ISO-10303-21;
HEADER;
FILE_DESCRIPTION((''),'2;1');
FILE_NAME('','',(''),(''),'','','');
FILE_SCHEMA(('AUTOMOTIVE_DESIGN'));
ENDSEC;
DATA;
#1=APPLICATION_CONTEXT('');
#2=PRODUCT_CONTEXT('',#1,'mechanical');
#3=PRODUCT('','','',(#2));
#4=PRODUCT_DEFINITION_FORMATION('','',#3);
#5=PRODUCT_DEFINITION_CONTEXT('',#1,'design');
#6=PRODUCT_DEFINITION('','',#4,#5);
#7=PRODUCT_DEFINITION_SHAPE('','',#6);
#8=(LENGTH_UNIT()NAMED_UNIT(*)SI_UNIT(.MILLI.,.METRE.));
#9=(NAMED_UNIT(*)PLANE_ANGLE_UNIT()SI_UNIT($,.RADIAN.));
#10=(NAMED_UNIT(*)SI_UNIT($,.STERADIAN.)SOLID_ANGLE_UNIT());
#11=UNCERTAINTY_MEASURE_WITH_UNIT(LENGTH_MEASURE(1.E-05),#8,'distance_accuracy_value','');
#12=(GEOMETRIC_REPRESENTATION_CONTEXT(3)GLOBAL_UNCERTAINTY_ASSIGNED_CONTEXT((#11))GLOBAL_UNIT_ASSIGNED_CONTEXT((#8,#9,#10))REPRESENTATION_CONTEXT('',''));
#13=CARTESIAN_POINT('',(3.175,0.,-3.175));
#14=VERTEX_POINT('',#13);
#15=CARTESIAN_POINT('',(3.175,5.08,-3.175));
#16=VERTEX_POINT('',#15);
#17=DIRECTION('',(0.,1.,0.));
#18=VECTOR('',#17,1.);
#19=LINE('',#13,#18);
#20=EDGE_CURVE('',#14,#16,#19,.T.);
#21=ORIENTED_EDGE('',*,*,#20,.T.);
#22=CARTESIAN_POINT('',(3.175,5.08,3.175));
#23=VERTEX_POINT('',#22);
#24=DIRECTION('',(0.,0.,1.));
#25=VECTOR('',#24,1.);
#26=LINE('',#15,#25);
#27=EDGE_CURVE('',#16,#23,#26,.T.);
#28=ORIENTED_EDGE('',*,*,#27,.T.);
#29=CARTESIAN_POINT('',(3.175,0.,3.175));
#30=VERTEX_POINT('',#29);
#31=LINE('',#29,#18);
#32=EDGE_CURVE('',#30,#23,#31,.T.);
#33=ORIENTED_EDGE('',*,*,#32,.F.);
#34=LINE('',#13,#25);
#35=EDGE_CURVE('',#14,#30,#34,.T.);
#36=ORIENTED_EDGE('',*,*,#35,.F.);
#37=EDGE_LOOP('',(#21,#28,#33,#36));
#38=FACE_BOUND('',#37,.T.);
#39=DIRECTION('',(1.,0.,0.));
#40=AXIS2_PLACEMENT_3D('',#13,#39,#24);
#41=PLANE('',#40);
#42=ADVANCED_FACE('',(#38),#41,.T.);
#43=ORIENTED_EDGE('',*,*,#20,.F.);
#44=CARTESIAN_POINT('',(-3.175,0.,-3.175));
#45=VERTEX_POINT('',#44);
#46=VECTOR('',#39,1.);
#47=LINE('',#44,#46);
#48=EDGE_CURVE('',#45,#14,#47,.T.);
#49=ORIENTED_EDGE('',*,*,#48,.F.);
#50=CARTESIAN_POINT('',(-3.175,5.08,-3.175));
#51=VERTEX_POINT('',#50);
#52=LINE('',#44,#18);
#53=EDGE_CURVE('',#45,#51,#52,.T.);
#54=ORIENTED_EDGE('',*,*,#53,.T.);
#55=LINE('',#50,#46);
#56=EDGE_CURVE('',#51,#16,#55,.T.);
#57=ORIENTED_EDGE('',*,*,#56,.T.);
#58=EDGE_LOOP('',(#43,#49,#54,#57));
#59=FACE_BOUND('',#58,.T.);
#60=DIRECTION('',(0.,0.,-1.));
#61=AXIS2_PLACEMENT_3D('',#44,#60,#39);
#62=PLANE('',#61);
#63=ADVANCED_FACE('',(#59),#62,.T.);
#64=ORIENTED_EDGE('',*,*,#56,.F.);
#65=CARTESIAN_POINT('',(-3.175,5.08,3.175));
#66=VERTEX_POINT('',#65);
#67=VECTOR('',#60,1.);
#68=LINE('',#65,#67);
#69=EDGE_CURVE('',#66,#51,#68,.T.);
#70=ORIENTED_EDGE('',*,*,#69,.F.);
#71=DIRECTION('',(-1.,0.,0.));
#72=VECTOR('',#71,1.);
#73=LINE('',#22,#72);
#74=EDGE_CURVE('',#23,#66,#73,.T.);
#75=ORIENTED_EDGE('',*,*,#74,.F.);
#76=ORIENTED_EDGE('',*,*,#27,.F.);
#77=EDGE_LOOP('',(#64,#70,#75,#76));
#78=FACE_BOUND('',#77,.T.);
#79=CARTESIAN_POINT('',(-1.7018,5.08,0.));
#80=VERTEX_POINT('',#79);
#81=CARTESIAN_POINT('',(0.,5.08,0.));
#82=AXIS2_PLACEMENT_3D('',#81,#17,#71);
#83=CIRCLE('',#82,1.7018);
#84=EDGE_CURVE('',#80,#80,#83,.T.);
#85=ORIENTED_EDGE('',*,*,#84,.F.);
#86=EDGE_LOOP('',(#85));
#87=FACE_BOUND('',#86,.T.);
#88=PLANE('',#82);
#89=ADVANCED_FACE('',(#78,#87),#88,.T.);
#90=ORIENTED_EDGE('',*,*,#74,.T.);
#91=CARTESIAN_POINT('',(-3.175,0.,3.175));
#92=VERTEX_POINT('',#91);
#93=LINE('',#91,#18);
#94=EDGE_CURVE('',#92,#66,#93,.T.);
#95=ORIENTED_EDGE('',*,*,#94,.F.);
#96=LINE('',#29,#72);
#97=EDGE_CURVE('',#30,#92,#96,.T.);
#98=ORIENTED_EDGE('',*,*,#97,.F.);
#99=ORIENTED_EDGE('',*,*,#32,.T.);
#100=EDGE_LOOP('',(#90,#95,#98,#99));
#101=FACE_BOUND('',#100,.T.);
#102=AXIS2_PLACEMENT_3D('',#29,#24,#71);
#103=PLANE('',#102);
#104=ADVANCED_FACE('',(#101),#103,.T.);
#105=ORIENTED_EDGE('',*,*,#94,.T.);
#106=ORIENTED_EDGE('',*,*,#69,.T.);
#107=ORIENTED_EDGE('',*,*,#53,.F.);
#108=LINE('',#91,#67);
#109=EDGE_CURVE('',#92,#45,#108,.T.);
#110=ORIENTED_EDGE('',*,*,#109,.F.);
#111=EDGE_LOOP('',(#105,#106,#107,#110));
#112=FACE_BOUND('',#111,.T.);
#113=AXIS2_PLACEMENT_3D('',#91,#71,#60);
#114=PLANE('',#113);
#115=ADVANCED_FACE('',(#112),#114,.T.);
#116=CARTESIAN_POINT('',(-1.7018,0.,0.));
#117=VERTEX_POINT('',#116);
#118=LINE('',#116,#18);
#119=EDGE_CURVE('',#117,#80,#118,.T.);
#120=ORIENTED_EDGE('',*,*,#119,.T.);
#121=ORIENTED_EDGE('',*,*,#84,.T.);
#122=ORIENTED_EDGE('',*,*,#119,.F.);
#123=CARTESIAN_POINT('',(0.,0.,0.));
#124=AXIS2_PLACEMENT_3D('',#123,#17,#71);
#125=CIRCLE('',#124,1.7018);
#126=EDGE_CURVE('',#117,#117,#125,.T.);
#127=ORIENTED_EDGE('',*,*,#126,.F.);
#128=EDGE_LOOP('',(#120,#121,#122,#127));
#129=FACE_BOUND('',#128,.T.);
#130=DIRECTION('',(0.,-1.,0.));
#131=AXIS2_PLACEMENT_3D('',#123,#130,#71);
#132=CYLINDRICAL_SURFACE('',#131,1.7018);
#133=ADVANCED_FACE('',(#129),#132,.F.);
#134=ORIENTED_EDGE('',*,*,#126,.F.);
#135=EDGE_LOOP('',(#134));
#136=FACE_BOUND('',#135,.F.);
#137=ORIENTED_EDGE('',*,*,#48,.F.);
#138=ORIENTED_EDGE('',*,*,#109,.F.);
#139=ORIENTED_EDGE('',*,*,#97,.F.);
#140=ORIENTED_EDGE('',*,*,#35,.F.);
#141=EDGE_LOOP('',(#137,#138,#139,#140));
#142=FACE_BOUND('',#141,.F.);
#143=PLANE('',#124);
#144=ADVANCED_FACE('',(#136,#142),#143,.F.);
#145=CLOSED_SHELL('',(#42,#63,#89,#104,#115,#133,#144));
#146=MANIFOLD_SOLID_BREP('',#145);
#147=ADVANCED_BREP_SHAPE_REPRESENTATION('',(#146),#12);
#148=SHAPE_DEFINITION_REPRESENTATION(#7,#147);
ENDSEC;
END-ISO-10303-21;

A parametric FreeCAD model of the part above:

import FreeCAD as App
import Part
import Sketcher
from FreeCAD import Vector
Q = App.Units.Quantity


def add_polygon(sketch, points):
    """Adds a closed chain of lines whose ends are joined by coincident constraints."""
    first, n = sketch.GeometryCount, len(points)
    for a, b in zip(points, points[1:] + points[:1]):
        sketch.addGeometry(Part.LineSegment(App.Vector(*a, 0), App.Vector(*b, 0)), False)
    for i in range(n):
        sketch.addConstraint(Sketcher.Constraint("Coincident", first + i, 2, first + (i + 1) % n, 1))

doc = App.newDocument("Part")
body = doc.addObject("PartDesign::Body", "Body")

sketch1 = doc.addObject("Sketcher::SketchObject", "Sketch")
body.addObject(sketch1)
sketch1.AttachmentSupport = (doc.XZ_Plane, [""])
sketch1.MapMode = "FlatFace"
add_polygon(sketch1, [(-3.2, 3.2), (3.2, 3.2), (3.2, -3.2), (-3.2, -3.2)])
sketch1.addGeometry(Part.Circle(Vector(0, 0, 0), Vector(0, 0, 1), 1.7), False)
sketch1.addConstraint(Sketcher.Constraint("Horizontal", 0))
sketch1.addConstraint(Sketcher.Constraint("Vertical", 1))
sketch1.addConstraint(Sketcher.Constraint("Horizontal", 2))
sketch1.addConstraint(Sketcher.Constraint("Vertical", 3))
sketch1.addConstraint(Sketcher.Constraint("Coincident", 4, 3, -1, 1))
sketch1.addConstraint(Sketcher.Constraint("Symmetric", 0, 2, 2, 2, -1, 1))
sketch1.addConstraint(Sketcher.Constraint("Equal", 2, 1))
sketch1.addConstraint(Sketcher.Constraint("Diameter", 4, Q("0.134 in")))
sketch1.addConstraint(Sketcher.Constraint("DistanceX", 0, 1, 0, 2, Q("0.25 in")))
pad1 = doc.addObject("PartDesign::Pad", "Pad")
body.addObject(pad1)
pad1.Profile = sketch1
pad1.Length = Q("0.2 in")
pad1.Reversed = True

doc.recompute()
